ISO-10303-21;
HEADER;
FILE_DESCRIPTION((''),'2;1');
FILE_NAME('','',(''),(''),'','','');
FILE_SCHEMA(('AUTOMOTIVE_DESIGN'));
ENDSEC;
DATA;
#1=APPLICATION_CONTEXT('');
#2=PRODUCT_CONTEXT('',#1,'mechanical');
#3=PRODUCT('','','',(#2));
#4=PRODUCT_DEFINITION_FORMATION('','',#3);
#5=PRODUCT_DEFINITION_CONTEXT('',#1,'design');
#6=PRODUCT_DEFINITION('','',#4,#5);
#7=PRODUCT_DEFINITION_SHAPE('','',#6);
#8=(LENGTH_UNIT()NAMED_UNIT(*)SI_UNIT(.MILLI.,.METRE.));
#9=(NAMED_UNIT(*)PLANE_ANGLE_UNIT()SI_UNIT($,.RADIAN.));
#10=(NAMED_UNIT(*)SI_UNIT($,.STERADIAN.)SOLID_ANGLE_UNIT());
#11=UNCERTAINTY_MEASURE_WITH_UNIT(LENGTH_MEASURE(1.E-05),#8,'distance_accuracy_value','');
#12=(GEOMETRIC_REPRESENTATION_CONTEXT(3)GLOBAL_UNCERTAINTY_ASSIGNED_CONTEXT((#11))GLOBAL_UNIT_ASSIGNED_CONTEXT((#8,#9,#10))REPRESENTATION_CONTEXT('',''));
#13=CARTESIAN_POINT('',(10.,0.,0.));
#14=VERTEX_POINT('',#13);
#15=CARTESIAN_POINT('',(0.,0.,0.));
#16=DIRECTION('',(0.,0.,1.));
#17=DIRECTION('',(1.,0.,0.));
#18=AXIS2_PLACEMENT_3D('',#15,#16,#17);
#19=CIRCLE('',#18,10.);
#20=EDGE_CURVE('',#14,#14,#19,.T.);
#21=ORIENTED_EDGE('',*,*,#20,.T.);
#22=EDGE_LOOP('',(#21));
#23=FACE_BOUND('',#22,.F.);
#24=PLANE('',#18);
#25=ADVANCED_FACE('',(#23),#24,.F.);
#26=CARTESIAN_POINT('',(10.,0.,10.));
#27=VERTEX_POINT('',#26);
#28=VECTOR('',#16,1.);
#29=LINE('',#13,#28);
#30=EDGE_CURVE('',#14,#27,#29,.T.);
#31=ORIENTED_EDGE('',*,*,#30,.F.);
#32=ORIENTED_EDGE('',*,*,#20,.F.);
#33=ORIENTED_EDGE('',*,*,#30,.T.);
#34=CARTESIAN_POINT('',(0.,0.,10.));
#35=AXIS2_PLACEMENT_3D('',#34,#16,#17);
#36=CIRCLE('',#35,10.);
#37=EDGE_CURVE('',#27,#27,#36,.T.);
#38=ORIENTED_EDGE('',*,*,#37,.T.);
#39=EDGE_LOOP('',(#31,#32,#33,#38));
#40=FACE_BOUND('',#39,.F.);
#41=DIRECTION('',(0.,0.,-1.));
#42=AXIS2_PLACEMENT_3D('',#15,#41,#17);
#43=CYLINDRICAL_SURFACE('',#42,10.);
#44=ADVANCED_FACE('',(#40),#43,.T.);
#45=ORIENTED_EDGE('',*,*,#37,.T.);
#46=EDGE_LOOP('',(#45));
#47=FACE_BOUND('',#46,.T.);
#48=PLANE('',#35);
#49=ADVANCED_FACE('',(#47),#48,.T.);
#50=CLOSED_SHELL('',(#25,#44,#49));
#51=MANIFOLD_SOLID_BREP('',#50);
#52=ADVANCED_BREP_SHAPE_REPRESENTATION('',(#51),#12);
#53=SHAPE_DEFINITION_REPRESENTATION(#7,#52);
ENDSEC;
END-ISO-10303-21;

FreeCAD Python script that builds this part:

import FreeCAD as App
import Part
import Sketcher

V = App.Vector

doc = App.newDocument("Part")
body = doc.addObject("PartDesign::Body", "Body")

# Sketch on XY plane
sketch1 = body.newObject("Sketcher::SketchObject", "Sketch")
sketch1.AttachmentSupport = (doc.getObject("XY_Plane"), [""])
sketch1.MapMode = "FlatFace"
sketch1.addGeometry(Part.Circle(V(0, 0, 0), V(0, 0, 1), 10), False)
sketch1.addConstraint([
    Sketcher.Constraint("Coincident", 0, 3, -1, 1),
    Sketcher.Constraint("Diameter", 0, 20.0),
])
pad1 = body.newObject("PartDesign::Pad", "Pad")
pad1.Profile = sketch1
pad1.Length = 10

doc.recompute()
